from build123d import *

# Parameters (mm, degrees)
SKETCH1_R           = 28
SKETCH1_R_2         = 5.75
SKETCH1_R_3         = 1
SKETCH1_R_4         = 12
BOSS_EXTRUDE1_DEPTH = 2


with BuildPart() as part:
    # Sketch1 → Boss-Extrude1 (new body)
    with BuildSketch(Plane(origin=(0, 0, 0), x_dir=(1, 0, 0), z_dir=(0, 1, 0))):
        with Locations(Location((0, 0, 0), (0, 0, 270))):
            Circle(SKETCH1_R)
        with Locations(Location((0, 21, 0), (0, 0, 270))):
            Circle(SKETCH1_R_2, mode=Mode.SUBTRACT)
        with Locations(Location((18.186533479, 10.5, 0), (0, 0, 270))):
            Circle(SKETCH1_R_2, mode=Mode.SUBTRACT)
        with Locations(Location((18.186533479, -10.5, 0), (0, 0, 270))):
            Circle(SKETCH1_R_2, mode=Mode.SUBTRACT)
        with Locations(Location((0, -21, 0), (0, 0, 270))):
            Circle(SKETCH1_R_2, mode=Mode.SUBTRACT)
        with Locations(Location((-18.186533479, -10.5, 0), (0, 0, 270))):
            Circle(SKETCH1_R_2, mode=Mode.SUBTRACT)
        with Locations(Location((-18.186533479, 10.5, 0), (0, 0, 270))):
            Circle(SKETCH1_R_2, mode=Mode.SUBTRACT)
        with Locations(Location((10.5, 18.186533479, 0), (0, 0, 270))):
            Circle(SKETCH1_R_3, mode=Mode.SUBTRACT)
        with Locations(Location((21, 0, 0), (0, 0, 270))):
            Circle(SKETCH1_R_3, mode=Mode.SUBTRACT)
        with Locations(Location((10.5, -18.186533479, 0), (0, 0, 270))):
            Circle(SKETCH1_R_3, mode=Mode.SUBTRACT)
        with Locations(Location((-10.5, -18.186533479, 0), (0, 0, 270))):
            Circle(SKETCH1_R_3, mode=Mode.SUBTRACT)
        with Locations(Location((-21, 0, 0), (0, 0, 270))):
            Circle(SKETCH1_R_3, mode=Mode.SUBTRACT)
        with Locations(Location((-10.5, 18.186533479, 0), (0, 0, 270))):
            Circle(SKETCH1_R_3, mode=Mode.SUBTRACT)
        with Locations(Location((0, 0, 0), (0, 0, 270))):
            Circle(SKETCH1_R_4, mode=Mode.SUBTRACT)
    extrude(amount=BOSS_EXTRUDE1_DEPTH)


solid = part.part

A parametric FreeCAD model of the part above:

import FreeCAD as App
import Part
import Sketcher

V = App.Vector
Q = App.Units.Quantity

doc = App.newDocument("Part")
body = doc.addObject("PartDesign::Body", "Body")

# Sketch on XZ plane
sketch1 = body.newObject("Sketcher::SketchObject", "Sketch")
sketch1.AttachmentSupport = (doc.getObject("XZ_Plane"), [""])
sketch1.MapMode = "FlatFace"
sketch1.addGeometry([
    Part.Circle(V(0, 0, 0), V(0, 0, 1), 28),  # 0
    Part.Circle(V(-18.2, -10.5, 0), V(0, 0, 1), 5.8),  # 1
    Part.Circle(V(-10.5, -18.2, 0), V(0, 0, 1), 1),  # 2
    Part.Circle(V(0, -21, 0), V(0, 0, 1), 5.8),  # 3
    Part.Circle(V(-21, 0, 0), V(0, 0, 1), 1),  # 4
    Part.Circle(V(-18.2, 10.5, 0), V(0, 0, 1), 5.8),  # 5
    Part.Circle(V(-10.5, 18.2, 0), V(0, 0, 1), 1),  # 6
    Part.Circle(V(10.5, -18.2, 0), V(0, 0, 1), 1),  # 7
    Part.Circle(V(0, 0, 0), V(0, 0, 1), 12),  # 8
    Part.Circle(V(18.2, -10.5, 0), V(0, 0, 1), 5.8),  # 9
    Part.Circle(V(21, 0, 0), V(0, 0, 1), 1),  # 10
    Part.Circle(V(0, 21, 0), V(0, 0, 1), 5.8),  # 11
    Part.Circle(V(10.5, 18.2, 0), V(0, 0, 1), 1),  # 12
    Part.Circle(V(18.2, 10.5, 0), V(0, 0, 1), 5.8),  # 13
], False)
sketch1.addConstraint([
    Sketcher.Constraint("Coincident", 0, 3, -1, 1),
    Sketcher.Constraint("Coincident", 8, 3, -1, 1),
    Sketcher.Constraint("Equal", 1, 3),
    Sketcher.Constraint("Equal", 2, 4),
    Sketcher.Constraint("Equal", 3, 5),
    Sketcher.Constraint("Equal", 4, 6),
    Sketcher.Constraint("Equal", 6, 7),
    Sketcher.Constraint("Equal", 5, 9),
    Sketcher.Constraint("Equal", 7, 10),
    Sketcher.Constraint("Equal", 9, 11),
    Sketcher.Constraint("Equal", 10, 12),
    Sketcher.Constraint("Equal", 11, 13),
    Sketcher.Constraint("Symmetric", 6, 3, 7, 3, -1, 1),
    Sketcher.Constraint("Symmetric", 5, 3, 9, 3, -1, 1),
    Sketcher.Constraint("Symmetric", 4, 3, 10, 3, -1, 1),
    Sketcher.Constraint("Symmetric", 3, 3, 11, 3, -1, 1),
    Sketcher.Constraint("Symmetric", 2, 3, 12, 3, -1, 1),
    Sketcher.Constraint("Symmetric", 1, 3, 13, 3, -1, 1),
    Sketcher.Constraint("Symmetric", 2, 3, 7, 3, -2),
    Sketcher.Constraint("Symmetric", 1, 3, 9, 3, -2),
    Sketcher.Constraint("PointOnObject", 3, 3, -2),
    Sketcher.Constraint("PointOnObject", 4, 3, -1),
    Sketcher.Constraint("Diameter", 0, Q("56 mm")),
    Sketcher.Constraint("Diameter", 2, Q("2 mm")),
    Sketcher.Constraint("Diameter", 8, Q("24 mm")),
    Sketcher.Constraint("Diameter", 1, Q("11.5 mm")),
    Sketcher.Constraint("DistanceY", 3, 3, -1, 1, Q("21 mm")),
    Sketcher.Constraint("DistanceX", 4, 3, -1, 1, Q("21 mm")),
    Sketcher.Constraint("DistanceY", 1, 3, 5, 3, Q("21 mm")),
    Sketcher.Constraint("DistanceX", 2, 3, 7, 3, Q("21 mm")),
    Sketcher.Constraint("DistanceX", 1, 3, -1, 1, Q("18.186533 mm")),
    Sketcher.Constraint("DistanceY", 2, 3, -1, 1, Q("18.186533 mm")),
])
pad1 = body.newObject("PartDesign::Pad", "Pad")
pad1.Profile = sketch1
pad1.Length = 2
pad1.Reversed = True

doc.recompute()
